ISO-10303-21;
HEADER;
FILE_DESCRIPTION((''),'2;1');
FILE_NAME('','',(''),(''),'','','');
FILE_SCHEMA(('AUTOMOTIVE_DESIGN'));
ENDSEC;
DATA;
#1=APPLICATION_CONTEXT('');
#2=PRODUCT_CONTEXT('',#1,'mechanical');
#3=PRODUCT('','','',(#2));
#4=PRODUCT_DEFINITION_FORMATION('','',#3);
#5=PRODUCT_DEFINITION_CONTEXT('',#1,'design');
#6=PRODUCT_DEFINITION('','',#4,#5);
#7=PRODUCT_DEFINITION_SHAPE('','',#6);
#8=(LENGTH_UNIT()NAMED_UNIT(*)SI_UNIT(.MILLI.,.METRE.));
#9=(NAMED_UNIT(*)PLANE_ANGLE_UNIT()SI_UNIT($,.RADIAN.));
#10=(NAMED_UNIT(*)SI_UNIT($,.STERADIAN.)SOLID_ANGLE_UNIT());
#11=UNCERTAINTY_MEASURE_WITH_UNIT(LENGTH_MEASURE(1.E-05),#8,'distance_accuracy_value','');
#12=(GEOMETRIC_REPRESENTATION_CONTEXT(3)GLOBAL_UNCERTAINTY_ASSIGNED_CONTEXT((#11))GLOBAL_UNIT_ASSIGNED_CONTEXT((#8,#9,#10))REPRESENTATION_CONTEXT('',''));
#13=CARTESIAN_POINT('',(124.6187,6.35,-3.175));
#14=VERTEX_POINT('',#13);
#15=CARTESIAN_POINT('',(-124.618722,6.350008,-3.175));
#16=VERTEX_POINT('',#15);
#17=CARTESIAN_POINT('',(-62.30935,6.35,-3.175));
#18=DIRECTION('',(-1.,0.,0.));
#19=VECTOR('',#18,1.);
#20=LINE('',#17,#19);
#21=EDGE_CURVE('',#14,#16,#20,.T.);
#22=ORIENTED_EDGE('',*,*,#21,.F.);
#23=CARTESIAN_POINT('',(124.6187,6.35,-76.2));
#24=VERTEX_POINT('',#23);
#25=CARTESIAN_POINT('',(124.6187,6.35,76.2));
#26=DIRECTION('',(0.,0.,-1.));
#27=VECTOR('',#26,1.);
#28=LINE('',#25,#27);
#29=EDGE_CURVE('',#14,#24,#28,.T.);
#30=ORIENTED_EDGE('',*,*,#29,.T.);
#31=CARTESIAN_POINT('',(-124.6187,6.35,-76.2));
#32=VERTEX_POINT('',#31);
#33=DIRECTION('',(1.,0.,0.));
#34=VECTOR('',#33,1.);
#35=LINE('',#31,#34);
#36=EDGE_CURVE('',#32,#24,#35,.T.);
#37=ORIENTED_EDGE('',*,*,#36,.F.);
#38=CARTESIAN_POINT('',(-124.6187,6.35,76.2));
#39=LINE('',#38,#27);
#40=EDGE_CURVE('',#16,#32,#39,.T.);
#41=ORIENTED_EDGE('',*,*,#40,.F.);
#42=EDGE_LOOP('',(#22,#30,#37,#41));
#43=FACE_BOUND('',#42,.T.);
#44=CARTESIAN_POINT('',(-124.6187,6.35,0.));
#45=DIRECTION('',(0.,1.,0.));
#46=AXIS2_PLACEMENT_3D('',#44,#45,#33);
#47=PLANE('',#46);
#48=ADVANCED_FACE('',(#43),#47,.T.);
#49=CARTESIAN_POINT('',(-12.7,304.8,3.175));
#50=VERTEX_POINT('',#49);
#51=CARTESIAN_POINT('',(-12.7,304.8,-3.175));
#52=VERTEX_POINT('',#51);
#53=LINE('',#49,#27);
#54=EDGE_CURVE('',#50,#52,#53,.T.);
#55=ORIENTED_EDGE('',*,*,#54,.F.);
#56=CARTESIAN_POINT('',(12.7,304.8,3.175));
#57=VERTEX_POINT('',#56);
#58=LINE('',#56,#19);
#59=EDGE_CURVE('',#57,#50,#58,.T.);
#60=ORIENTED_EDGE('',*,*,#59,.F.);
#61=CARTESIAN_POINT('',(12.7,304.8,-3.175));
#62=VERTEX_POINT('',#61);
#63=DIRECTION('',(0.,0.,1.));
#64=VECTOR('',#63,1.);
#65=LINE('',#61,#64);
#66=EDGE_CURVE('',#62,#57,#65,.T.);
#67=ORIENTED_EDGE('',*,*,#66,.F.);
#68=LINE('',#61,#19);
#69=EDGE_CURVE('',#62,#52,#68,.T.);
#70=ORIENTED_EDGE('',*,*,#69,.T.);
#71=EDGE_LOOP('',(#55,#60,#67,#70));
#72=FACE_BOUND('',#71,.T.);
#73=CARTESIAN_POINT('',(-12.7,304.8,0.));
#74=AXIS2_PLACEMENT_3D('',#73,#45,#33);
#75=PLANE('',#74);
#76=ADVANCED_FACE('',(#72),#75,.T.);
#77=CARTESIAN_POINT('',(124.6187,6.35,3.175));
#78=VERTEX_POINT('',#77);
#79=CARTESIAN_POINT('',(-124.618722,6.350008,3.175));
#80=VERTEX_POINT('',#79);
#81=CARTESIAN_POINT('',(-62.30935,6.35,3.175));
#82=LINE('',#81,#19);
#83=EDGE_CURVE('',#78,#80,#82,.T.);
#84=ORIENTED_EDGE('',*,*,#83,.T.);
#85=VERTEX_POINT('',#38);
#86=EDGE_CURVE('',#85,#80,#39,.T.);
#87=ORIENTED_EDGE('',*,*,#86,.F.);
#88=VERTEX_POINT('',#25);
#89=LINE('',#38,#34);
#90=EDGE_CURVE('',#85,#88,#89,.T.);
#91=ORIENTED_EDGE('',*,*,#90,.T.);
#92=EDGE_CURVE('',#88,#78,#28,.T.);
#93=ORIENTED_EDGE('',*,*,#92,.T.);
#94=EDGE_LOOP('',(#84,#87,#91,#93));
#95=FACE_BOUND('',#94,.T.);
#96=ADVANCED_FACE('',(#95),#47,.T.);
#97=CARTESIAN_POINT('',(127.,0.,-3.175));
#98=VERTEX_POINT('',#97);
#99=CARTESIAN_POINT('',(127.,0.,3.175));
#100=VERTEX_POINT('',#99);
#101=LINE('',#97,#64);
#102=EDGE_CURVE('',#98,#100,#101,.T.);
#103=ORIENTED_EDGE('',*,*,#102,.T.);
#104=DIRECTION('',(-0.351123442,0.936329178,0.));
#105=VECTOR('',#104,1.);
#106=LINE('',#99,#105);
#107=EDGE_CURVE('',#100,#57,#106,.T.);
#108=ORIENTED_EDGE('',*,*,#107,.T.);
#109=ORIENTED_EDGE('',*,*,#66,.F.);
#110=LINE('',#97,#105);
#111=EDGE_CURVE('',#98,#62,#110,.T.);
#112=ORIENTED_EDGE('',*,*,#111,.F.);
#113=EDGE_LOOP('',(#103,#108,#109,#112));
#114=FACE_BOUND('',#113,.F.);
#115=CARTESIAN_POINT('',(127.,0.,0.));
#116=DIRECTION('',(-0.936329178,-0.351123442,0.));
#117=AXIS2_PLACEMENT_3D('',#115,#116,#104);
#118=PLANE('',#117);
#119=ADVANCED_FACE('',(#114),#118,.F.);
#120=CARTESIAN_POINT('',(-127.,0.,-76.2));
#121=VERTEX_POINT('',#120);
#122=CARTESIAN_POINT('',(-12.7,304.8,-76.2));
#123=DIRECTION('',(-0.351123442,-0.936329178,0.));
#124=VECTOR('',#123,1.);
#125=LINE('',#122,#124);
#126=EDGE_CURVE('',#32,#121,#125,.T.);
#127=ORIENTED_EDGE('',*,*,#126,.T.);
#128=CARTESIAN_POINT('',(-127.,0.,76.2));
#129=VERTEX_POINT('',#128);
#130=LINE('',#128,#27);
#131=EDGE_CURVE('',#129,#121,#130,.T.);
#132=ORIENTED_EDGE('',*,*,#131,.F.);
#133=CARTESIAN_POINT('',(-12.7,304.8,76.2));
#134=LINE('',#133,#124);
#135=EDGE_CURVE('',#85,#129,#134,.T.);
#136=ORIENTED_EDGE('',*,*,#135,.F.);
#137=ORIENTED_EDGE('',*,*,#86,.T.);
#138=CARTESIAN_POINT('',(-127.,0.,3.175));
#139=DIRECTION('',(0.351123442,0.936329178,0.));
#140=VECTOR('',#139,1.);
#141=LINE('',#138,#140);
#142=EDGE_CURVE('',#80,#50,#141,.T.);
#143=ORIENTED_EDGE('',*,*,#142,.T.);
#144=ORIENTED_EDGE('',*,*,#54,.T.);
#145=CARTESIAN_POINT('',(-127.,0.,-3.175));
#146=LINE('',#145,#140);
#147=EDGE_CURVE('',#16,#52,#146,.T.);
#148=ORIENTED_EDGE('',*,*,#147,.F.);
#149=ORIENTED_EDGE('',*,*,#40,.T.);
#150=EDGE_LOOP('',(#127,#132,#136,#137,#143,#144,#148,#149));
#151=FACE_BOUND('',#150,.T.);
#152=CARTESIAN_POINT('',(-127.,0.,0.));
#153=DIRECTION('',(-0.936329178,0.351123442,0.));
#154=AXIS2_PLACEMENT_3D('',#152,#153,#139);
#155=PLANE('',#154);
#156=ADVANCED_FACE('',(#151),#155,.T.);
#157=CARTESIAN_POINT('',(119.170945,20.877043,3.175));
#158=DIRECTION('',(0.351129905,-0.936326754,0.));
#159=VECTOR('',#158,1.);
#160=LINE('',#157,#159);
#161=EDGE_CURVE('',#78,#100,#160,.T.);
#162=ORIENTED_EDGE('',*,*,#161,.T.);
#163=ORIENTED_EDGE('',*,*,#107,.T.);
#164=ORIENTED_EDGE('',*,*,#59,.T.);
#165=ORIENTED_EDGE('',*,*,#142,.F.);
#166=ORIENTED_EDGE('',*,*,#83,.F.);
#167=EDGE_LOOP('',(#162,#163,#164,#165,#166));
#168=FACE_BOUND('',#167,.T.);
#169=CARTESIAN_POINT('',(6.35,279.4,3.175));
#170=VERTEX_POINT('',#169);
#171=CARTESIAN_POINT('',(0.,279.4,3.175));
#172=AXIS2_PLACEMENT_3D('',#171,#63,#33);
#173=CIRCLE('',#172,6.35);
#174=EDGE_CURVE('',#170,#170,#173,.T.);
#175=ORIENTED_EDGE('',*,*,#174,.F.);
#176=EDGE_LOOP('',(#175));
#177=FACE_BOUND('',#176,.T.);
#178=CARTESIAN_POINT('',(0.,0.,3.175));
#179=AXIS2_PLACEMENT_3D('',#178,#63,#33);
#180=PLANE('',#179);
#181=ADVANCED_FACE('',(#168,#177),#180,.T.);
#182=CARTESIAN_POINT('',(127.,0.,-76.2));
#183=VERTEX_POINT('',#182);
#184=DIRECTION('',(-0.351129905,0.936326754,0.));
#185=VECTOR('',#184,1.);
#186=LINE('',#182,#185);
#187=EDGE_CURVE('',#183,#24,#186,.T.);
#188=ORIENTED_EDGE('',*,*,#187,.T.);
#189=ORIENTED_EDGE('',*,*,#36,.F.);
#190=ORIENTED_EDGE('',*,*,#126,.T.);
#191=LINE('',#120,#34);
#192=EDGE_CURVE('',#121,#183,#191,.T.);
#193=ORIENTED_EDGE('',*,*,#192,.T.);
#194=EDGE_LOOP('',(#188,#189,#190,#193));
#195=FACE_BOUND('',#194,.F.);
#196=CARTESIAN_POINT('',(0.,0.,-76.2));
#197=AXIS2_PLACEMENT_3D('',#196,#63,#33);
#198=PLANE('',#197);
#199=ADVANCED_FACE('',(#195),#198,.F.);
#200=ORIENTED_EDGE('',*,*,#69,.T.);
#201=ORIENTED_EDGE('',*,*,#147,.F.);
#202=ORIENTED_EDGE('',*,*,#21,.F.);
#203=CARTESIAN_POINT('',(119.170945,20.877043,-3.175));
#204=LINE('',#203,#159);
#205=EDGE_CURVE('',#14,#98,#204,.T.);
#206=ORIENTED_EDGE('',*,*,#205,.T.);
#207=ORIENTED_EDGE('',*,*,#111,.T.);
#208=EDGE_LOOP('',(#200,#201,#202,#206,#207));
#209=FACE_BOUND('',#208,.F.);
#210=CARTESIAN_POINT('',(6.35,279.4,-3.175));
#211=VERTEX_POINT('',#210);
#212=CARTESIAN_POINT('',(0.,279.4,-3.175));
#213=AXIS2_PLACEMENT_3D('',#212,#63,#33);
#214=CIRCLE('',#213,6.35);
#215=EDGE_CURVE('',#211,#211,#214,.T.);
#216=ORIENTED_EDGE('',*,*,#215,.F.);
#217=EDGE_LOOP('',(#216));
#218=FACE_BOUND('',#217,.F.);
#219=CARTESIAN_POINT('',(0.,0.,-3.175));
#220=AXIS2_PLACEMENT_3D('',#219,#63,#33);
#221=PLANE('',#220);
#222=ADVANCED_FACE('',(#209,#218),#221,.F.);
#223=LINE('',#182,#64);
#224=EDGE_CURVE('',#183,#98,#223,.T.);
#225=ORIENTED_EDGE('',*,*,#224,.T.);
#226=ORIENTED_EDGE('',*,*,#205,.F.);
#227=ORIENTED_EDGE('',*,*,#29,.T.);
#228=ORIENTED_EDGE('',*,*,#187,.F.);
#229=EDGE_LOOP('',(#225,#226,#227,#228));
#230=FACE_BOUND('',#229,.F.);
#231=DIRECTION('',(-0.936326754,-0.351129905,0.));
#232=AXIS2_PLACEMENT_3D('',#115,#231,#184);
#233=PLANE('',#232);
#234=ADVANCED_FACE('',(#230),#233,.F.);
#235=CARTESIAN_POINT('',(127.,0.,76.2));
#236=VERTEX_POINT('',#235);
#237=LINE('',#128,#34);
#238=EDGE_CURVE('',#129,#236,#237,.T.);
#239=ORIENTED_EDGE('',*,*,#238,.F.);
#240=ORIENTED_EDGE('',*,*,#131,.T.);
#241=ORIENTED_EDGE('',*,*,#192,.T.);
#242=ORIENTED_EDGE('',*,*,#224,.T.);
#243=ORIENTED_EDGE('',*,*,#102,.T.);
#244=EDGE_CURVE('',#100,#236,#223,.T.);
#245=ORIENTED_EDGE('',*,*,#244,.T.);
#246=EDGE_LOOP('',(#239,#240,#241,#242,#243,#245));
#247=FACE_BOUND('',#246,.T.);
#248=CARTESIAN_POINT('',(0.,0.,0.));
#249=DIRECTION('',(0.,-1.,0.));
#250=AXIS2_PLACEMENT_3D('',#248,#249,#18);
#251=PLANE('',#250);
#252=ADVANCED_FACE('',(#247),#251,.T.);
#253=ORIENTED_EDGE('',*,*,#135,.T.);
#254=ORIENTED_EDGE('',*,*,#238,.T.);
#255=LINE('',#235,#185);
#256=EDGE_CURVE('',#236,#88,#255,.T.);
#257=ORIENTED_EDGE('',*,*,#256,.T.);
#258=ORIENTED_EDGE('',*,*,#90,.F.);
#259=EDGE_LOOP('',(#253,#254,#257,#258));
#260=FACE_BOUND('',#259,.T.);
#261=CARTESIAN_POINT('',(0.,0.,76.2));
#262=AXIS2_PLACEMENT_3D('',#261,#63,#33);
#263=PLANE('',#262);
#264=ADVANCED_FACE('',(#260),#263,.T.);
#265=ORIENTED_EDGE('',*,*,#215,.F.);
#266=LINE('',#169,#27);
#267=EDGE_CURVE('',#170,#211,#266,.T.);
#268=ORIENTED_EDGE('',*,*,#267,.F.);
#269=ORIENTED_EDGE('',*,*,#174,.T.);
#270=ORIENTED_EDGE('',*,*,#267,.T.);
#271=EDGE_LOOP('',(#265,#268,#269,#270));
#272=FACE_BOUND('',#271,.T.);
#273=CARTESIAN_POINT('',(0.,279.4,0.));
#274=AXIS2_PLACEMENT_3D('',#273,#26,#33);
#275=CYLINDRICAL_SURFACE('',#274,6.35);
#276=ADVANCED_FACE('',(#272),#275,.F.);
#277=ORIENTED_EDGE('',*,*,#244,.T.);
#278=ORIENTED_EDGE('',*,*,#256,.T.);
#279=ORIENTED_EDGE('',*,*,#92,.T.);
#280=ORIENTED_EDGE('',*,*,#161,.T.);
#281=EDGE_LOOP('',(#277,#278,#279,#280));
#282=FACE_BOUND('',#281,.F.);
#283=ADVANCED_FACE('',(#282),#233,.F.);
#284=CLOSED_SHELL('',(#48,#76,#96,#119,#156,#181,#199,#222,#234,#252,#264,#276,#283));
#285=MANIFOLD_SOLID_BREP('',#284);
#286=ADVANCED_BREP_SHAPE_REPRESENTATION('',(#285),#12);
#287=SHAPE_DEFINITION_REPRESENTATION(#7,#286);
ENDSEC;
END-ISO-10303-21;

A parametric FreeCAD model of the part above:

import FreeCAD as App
import Part
import Sketcher
Q = App.Units.Quantity

doc = App.newDocument("Part")
body = doc.addObject("PartDesign::Body", "Body")

# Sketch on XY plane
sketch1 = body.newObject("Sketcher::SketchObject", "Sketch")
sketch1.AttachmentSupport = (doc.getObject("XY_Plane"), [""])
sketch1.MapMode = "FlatFace"
sketch1.addGeometry(Part.LineSegment(App.Vector(-127, 0, 0), App.Vector(127, 0, 0)), False)
sketch1.addGeometry(Part.LineSegment(App.Vector(127, 0, 0), App.Vector(12.7, 304.8, 0)), False)
sketch1.addGeometry(Part.LineSegment(App.Vector(12.7, 304.8, 0), App.Vector(-12.7, 304.8, 0)), False)
sketch1.addGeometry(Part.LineSegment(App.Vector(-12.7, 304.8, 0), App.Vector(-127, 0, 0)), False)
sketch1.addGeometry(Part.Circle(App.Vector(0, 279.4, 0), App.Vector(0, 0, 1), 6.35), False)
sketch1.addConstraint(Sketcher.Constraint("Coincident", 0, 2, 1, 1))
sketch1.addConstraint(Sketcher.Constraint("Coincident", 1, 2, 2, 1))
sketch1.addConstraint(Sketcher.Constraint("Coincident", 2, 2, 3, 1))
sketch1.addConstraint(Sketcher.Constraint("Coincident", 3, 2, 0, 1))
sketch1.addConstraint(Sketcher.Constraint("Horizontal", 0))
sketch1.addConstraint(Sketcher.Constraint("Horizontal", 2))
sketch1.addConstraint(Sketcher.Constraint("Symmetric", 0, 2, 3, 2, -1, 1))
sketch1.addConstraint(Sketcher.Constraint("PointOnObject", 4, 3, -2))
sketch1.addConstraint(Sketcher.Constraint("Equal", 1, 3))
sketch1.addConstraint(Sketcher.Constraint("Diameter", 4, Q("0.5 in")))
sketch1.addConstraint(Sketcher.Constraint("DistanceX", 0, 1, 0, 2, Q("10 in")))
sketch1.addConstraint(Sketcher.Constraint("DistanceX", 2, 2, 2, 1, Q("1 in")))
sketch1.addConstraint(Sketcher.Constraint("DistanceY", -1, 1, 4, 3, Q("11 in")))
sketch1.addConstraint(Sketcher.Constraint("DistanceY", -1, 1, 1, 2, Q("12 in")))
pad1 = body.newObject("PartDesign::Pad", "Pad")
pad1.Profile = sketch1
pad1.Length = Q("0.25 in")
pad1.Midplane = True

# Sketch on XY plane
sketch2 = body.newObject("Sketcher::SketchObject", "Sketch001")
sketch2.AttachmentSupport = (doc.getObject("XY_Plane"), [""])
sketch2.MapMode = "FlatFace"
sketch2.addGeometry(Part.LineSegment(App.Vector(-124.618744, 6.350016, 0), App.Vector(-127, 0, 0)), False)
sketch2.addGeometry(Part.LineSegment(App.Vector(-127, 0, 0), App.Vector(127, 0, 0)), False)
sketch2.addGeometry(Part.LineSegment(App.Vector(127, 0, 0), App.Vector(124.6187, 6.35, 0)), False)
sketch2.addGeometry(Part.LineSegment(App.Vector(124.6187, 6.35, 0), App.Vector(-124.6187, 6.35, 0)), False)
sketch2.addConstraint(Sketcher.Constraint("Coincident", 0, 2, 1, 1))
sketch2.addConstraint(Sketcher.Constraint("Coincident", 1, 2, 2, 1))
sketch2.addConstraint(Sketcher.Constraint("Coincident", 2, 2, 3, 1))
sketch2.addConstraint(Sketcher.Constraint("Coincident", 3, 2, 0, 1))
sketch2.addConstraint(Sketcher.Constraint("Horizontal", 1))
sketch2.addConstraint(Sketcher.Constraint("Horizontal", 3))
sketch2.addConstraint(Sketcher.Constraint("Symmetric", 0, 2, 1, 2, -1, 1))
sketch2.addConstraint(Sketcher.Constraint("Equal", 0, 2))
sketch2.addConstraint(Sketcher.Constraint("DistanceX", 1, 1, 1, 2, Q("10 in")))
sketch2.addConstraint(Sketcher.Constraint("DistanceY", -1, 1, 2, 2, Q("0.25 in")))
sketch2.addConstraint(Sketcher.Constraint("DistanceX", 3, 2, 3, 1, Q("9.8125 in")))
pad2 = body.newObject("PartDesign::Pad", "Pad001")
pad2.Profile = sketch2
pad2.Length = Q("6 in")
pad2.Midplane = True

doc.recompute()
